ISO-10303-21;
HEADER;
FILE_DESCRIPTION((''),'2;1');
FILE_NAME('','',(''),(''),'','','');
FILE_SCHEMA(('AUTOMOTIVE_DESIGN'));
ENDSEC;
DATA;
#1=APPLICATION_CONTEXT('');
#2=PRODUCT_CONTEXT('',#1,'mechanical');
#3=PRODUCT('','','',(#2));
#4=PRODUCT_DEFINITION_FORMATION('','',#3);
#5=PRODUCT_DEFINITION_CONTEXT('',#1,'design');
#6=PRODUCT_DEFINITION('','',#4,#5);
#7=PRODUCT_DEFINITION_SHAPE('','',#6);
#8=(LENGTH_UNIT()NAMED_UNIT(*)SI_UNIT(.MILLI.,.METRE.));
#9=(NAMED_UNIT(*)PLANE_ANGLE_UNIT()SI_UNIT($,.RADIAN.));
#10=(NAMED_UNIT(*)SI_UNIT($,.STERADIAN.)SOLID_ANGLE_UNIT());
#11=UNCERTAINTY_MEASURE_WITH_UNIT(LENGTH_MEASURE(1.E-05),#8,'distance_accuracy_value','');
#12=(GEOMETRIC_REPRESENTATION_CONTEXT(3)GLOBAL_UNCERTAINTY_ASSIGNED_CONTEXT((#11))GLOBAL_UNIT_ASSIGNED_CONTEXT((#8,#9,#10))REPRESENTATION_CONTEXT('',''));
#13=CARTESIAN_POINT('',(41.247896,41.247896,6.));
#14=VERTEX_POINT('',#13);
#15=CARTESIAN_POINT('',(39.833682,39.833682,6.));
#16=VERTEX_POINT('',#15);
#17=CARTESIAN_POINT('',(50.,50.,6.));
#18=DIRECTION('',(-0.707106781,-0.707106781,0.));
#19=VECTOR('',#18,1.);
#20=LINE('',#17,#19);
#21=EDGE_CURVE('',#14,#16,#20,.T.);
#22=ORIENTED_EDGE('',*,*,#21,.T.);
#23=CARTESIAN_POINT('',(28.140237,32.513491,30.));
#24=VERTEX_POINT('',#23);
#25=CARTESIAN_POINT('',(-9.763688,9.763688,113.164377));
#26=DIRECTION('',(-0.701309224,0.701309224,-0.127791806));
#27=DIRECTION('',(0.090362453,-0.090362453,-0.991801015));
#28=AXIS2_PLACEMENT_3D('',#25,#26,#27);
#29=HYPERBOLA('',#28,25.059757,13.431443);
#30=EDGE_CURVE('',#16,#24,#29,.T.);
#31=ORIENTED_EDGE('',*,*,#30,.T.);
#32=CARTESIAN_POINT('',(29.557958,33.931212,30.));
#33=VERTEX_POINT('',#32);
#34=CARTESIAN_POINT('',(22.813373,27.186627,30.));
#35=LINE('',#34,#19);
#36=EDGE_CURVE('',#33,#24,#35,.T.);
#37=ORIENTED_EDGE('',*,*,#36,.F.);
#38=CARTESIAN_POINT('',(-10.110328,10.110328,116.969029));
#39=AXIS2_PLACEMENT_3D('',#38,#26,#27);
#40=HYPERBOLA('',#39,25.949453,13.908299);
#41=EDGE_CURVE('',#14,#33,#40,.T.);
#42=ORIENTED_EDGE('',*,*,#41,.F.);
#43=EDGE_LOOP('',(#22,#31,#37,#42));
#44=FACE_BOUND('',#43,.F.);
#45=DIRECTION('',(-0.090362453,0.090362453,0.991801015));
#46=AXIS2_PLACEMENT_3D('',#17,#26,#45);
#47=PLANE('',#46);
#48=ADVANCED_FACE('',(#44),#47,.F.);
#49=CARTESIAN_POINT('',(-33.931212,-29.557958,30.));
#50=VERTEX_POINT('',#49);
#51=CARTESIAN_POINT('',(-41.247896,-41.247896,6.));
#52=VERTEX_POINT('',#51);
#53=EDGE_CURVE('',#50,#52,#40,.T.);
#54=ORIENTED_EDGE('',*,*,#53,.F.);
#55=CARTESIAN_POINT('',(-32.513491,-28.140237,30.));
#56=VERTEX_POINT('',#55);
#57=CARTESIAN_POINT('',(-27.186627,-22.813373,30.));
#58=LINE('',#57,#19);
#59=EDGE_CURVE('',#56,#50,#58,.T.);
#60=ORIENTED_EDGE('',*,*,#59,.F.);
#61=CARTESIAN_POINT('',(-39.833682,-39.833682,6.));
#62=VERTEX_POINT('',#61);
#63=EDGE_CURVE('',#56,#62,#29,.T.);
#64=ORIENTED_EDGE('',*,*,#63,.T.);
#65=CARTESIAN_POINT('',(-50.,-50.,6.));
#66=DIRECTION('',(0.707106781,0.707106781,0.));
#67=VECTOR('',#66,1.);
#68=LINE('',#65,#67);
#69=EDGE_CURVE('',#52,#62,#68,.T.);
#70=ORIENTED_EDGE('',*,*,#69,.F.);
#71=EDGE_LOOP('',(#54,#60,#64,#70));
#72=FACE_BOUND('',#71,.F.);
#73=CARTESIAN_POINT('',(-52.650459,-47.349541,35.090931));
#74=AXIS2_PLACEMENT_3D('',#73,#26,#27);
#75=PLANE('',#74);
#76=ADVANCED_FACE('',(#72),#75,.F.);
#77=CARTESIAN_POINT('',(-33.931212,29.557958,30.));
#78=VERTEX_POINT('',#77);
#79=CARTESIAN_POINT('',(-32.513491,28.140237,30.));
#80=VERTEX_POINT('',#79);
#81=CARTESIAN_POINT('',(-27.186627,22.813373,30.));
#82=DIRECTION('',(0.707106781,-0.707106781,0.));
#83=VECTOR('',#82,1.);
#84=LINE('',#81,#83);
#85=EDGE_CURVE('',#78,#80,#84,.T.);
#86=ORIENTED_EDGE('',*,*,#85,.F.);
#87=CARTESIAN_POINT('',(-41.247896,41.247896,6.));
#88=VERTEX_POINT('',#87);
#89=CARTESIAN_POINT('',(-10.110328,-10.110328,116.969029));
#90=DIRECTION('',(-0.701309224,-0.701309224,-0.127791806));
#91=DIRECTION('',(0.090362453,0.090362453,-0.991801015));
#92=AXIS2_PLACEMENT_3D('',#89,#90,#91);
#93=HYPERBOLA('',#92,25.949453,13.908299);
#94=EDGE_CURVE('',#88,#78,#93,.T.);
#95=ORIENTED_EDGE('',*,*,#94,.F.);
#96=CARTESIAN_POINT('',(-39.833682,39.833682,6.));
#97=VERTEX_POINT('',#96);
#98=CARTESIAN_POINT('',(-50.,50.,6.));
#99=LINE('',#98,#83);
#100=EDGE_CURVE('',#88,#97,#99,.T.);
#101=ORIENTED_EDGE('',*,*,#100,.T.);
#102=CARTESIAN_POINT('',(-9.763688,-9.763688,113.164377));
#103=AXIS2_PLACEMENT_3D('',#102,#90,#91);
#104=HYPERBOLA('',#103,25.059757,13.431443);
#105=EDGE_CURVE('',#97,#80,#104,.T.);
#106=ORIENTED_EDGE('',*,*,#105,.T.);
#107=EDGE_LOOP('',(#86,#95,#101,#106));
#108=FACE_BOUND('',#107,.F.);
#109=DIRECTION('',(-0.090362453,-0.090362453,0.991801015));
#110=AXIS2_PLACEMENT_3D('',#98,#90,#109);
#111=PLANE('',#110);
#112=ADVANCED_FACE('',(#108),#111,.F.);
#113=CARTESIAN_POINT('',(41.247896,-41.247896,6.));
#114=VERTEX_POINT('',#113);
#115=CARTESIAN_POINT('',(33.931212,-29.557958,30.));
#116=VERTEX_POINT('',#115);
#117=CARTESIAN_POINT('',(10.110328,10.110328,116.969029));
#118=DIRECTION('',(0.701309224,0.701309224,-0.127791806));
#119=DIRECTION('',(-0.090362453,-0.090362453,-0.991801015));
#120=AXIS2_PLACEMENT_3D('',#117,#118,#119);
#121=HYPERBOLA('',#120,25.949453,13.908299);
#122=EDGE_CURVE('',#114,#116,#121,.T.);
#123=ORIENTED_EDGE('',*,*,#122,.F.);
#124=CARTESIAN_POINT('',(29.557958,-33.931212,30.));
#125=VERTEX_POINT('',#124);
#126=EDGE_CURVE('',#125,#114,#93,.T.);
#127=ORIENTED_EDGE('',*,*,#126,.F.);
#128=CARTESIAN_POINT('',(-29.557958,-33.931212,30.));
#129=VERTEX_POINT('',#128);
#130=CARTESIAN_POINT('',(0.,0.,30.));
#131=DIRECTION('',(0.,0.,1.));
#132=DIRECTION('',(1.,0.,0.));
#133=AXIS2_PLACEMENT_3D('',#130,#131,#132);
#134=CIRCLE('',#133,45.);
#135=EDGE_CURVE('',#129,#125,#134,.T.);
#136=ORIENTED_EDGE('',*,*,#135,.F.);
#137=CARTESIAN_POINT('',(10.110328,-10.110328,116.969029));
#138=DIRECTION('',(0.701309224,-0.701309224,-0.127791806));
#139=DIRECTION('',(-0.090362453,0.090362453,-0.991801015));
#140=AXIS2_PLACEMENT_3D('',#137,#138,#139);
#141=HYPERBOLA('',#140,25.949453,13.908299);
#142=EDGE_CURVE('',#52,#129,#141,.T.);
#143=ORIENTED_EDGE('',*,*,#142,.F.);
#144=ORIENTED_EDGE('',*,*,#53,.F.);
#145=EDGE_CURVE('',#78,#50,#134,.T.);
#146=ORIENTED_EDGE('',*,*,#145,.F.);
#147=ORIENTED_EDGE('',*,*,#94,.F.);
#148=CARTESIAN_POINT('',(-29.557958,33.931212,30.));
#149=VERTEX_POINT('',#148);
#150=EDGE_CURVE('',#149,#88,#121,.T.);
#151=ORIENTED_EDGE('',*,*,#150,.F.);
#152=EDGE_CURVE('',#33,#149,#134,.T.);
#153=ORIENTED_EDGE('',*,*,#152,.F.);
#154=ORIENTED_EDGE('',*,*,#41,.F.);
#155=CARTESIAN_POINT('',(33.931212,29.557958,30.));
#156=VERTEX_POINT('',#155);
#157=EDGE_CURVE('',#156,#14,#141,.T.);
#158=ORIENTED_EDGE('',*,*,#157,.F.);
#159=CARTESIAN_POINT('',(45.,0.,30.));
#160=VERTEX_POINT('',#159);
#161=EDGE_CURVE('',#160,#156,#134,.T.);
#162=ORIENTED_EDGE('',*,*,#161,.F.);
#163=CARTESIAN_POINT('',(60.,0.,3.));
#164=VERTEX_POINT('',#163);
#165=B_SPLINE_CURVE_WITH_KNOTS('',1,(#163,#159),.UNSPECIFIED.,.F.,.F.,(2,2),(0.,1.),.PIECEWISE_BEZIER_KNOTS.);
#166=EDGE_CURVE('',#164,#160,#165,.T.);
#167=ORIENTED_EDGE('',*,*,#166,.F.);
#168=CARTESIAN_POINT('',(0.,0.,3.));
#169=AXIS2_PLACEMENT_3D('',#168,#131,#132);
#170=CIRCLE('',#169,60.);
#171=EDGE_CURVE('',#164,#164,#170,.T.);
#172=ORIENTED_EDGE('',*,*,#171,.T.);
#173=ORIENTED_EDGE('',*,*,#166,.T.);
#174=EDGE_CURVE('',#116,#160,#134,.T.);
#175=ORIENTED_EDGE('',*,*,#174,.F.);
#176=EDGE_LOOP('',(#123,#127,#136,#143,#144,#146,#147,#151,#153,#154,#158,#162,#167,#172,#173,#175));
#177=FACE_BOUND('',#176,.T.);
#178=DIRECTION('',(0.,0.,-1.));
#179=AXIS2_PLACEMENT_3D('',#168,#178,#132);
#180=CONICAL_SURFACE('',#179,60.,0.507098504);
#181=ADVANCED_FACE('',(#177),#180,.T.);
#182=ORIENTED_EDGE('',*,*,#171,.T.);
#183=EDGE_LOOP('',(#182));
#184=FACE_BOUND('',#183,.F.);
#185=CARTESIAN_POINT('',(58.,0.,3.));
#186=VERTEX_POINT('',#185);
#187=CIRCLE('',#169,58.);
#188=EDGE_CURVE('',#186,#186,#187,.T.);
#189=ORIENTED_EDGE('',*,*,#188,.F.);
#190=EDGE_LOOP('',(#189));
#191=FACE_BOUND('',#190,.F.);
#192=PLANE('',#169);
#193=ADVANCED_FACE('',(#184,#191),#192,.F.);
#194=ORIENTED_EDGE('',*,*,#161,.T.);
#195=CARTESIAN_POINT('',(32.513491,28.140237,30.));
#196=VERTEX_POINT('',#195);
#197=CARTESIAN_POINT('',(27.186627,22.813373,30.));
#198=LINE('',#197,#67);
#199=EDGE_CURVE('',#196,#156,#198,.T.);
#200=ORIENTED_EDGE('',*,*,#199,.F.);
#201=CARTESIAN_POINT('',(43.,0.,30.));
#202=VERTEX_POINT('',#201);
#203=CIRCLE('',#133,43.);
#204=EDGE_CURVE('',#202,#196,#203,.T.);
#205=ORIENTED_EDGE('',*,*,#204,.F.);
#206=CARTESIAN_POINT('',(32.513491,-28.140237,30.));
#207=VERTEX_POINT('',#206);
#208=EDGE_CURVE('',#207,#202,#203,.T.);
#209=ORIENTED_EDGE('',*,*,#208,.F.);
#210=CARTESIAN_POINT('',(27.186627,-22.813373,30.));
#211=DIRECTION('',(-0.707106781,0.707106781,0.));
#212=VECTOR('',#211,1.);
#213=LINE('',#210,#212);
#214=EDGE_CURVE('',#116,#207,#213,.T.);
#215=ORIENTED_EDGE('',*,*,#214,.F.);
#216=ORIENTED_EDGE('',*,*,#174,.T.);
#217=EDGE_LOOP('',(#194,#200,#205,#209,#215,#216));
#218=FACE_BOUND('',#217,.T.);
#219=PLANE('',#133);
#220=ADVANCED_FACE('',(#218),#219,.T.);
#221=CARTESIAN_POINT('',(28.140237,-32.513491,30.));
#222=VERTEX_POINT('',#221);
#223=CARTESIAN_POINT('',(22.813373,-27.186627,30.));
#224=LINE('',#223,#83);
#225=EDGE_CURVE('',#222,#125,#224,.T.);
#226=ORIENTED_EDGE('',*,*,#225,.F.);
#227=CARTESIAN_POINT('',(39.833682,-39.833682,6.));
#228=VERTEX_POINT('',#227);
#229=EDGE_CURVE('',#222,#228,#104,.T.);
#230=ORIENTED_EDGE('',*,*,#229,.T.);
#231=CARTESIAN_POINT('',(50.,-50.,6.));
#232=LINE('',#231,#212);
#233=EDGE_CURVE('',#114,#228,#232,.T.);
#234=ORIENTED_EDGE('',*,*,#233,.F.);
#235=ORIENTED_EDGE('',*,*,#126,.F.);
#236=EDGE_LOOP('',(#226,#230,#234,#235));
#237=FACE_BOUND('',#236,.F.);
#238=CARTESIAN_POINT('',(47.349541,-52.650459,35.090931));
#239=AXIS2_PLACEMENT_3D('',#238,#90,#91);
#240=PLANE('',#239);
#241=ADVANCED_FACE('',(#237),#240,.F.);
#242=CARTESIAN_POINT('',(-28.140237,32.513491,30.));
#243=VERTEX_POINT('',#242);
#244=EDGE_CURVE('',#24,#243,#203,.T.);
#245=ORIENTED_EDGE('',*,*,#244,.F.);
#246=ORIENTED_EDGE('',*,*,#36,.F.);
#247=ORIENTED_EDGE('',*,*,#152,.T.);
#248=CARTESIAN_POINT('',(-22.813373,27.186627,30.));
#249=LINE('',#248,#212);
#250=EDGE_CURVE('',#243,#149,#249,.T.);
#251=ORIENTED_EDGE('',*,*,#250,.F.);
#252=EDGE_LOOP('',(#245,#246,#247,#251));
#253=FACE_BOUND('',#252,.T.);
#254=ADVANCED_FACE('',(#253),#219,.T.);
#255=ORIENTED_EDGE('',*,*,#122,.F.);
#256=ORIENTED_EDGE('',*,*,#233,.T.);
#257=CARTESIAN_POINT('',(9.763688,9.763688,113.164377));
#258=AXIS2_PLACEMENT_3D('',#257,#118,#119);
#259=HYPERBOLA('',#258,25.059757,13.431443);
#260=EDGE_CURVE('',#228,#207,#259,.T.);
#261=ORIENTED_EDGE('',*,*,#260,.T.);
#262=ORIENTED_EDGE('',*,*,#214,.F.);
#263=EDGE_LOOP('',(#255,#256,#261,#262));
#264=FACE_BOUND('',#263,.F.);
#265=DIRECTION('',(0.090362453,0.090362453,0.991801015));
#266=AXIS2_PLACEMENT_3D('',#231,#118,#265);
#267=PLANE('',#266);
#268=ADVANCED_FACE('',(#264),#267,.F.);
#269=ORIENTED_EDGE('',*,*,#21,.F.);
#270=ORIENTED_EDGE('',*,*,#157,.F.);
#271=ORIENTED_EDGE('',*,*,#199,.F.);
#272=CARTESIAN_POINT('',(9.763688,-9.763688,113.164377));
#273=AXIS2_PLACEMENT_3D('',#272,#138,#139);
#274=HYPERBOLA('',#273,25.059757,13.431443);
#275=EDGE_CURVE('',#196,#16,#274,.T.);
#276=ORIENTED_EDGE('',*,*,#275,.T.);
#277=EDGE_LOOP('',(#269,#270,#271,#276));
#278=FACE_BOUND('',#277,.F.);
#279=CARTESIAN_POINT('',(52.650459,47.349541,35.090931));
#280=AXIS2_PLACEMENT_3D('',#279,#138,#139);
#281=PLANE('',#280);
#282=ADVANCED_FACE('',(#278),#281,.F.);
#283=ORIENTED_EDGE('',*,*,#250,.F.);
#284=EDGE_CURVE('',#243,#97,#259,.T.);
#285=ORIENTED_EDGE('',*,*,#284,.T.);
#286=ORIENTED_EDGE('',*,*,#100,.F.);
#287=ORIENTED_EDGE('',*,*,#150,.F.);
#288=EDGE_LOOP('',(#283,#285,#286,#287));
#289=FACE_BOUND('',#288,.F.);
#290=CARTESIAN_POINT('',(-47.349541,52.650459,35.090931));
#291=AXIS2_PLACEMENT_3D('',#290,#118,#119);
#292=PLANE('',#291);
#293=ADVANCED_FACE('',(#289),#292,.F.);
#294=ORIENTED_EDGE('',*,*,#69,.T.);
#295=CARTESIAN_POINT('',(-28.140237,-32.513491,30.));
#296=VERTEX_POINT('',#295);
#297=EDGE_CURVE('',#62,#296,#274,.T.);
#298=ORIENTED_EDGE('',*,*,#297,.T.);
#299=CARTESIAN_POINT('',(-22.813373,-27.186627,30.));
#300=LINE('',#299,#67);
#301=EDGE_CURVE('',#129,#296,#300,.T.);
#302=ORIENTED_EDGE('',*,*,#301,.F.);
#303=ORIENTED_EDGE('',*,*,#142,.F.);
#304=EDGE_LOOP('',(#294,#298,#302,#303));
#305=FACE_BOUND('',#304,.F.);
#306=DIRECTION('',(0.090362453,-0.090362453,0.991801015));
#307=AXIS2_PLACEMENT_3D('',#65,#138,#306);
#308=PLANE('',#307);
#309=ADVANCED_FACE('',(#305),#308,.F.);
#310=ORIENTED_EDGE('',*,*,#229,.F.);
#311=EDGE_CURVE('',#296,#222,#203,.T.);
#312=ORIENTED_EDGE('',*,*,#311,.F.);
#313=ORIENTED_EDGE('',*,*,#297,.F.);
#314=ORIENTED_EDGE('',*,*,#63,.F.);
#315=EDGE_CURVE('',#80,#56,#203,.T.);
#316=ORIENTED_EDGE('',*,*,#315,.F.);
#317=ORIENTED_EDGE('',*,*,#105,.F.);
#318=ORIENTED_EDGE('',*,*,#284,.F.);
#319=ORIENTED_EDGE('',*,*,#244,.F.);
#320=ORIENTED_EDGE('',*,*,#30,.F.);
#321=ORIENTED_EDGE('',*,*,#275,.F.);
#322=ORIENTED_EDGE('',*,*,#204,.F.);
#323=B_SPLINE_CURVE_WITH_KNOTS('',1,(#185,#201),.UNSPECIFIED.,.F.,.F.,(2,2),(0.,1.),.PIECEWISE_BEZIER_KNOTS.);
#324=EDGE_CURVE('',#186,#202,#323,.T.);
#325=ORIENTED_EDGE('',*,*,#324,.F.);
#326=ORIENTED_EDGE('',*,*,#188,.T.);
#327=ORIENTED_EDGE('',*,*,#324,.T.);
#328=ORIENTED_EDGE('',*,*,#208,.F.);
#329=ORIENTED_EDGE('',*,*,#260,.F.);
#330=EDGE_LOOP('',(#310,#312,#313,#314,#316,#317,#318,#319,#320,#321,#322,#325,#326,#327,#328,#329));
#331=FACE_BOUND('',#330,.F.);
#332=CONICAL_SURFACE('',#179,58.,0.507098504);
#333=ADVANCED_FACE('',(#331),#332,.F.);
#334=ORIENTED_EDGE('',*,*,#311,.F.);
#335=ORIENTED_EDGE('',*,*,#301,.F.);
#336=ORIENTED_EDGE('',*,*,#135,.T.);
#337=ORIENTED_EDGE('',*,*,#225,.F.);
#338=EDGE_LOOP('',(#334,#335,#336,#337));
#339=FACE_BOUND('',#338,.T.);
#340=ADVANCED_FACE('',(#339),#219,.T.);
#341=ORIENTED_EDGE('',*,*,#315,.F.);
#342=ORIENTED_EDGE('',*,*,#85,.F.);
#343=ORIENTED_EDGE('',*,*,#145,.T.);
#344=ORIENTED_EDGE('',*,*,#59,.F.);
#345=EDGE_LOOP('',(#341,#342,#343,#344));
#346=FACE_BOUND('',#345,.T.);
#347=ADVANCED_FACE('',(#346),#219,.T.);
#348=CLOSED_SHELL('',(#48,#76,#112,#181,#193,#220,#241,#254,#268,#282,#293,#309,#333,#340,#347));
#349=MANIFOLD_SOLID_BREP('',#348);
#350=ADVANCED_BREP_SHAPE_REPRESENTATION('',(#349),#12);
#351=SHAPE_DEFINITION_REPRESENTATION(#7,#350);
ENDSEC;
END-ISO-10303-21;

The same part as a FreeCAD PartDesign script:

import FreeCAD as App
import Part
import Sketcher
Q = App.Units.Quantity

doc = App.newDocument("Part")
body = doc.addObject("PartDesign::Body", "Body")

# Sketch on XY plane
sketch1 = doc.addObject("Sketcher::SketchObject", "Sketch")
body.addObject(sketch1)
sketch1.AttachmentSupport = (doc.XY_Plane, [""])
sketch1.MapMode = "FlatFace"
sketch1.AttachmentOffset = App.Placement(App.Vector(0, 0, 3), App.Rotation())
sketch1.addGeometry(Part.Circle(App.Vector(0, 0, 0), App.Vector(0, 0, 1), 58), False)
sketch1.addConstraint(Sketcher.Constraint("Coincident", 0, 3, -1, 1))
sketch1.addConstraint(Sketcher.Constraint("Diameter", 0, Q("116 mm")))

# Sketch on XY plane
sketch2 = doc.addObject("Sketcher::SketchObject", "Sketch001")
body.addObject(sketch2)
sketch2.AttachmentSupport = (doc.XY_Plane, [""])
sketch2.MapMode = "FlatFace"
sketch2.AttachmentOffset = App.Placement(App.Vector(0, 0, 30), App.Rotation())
sketch2.addGeometry(Part.Circle(App.Vector(0, 0, 0), App.Vector(0, 0, 1), 43), False)
sketch2.addConstraint(Sketcher.Constraint("Coincident", 0, 3, -1, 1))
sketch2.addConstraint(Sketcher.Constraint("Diameter", 0, Q("86 mm")))

additiveloft = doc.addObject("PartDesign::AdditiveLoft", "AdditiveLoft")
body.addObject(additiveloft)
additiveloft.Profile = sketch1
additiveloft.Sections = [sketch2]
body2 = doc.addObject("PartDesign::Body", "Body001")

# Sketch on XY plane
sketch3 = doc.addObject("Sketcher::SketchObject", "Sketch002")
body2.addObject(sketch3)
sketch3.AttachmentSupport = (doc.getObject("XY_Plane001"), [""])
sketch3.MapMode = "FlatFace"
sketch3.AttachmentOffset = App.Placement(App.Vector(0, 0, 3), App.Rotation())
sketch3.addGeometry(Part.Circle(App.Vector(0, 0, 0), App.Vector(0, 0, 1), 60), False)
sketch3.addConstraint(Sketcher.Constraint("Coincident", 0, 3, -1, 1))
sketch3.addConstraint(Sketcher.Constraint("Diameter", 0, Q("120 mm")))

# Sketch on XY plane
sketch4 = doc.addObject("Sketcher::SketchObject", "Sketch003")
body2.addObject(sketch4)
sketch4.AttachmentSupport = (doc.getObject("XY_Plane001"), [""])
sketch4.MapMode = "FlatFace"
sketch4.AttachmentOffset = App.Placement(App.Vector(0, 0, 30), App.Rotation())
sketch4.addGeometry(Part.Circle(App.Vector(0, 0, 0), App.Vector(0, 0, 1), 45), False)
sketch4.addConstraint(Sketcher.Constraint("Coincident", 0, 3, -1, 1))
sketch4.addConstraint(Sketcher.Constraint("Diameter", 0, Q("90 mm")))

additiveloft2 = doc.addObject("PartDesign::AdditiveLoft", "AdditiveLoft001")
body2.addObject(additiveloft2)
additiveloft2.Profile = sketch3
additiveloft2.Sections = [sketch4]
doc.recompute()

boolean = doc.addObject("PartDesign::Boolean", "Boolean")
body2.addObject(boolean)
boolean.Type = "Cut"
boolean.addObjects([body])

# Sketch on an angled plane
sketch5 = doc.addObject("Sketcher::SketchObject", "Sketch004")
body2.addObject(sketch5)
sketch5.Placement = App.Placement(App.Vector(-50, -50, 0), App.Rotation(App.Vector(-0.707106781, 0.707106781, 0), App.Vector(0, 0, 0.999999999), App.Vector(0.707106781, 0.707106781, 0), "ZXY"))
sketch5.addGeometry(Part.LineSegment(App.Vector(-4, 35, 0), App.Vector(0, 6, 0)), False)
sketch5.addGeometry(Part.LineSegment(App.Vector(0, 6, 0), App.Vector(4, 35, 0)), False)
sketch5.addGeometry(Part.LineSegment(App.Vector(4, 35, 0), App.Vector(-4, 35, 0)), False)
sketch5.addConstraint(Sketcher.Constraint("Coincident", 0, 2, 1, 1))
sketch5.addConstraint(Sketcher.Constraint("Coincident", 1, 2, 2, 1))
sketch5.addConstraint(Sketcher.Constraint("Coincident", 2, 2, 0, 1))
sketch5.addConstraint(Sketcher.Constraint("Horizontal", 2))
sketch5.addConstraint(Sketcher.Constraint("PointOnObject", 0, 2, -2))
sketch5.addConstraint(Sketcher.Constraint("Equal", 0, 1))
sketch5.addConstraint(Sketcher.Constraint("DistanceY", -1, 1, 0, 2, Q("6 mm")))
sketch5.addConstraint(Sketcher.Constraint("DistanceX", 2, 2, 2, 1, Q("7.49663 mm")))
sketch5.addConstraint(Sketcher.Constraint("Distance", 0, Q("29.331419 mm")))
pocket1 = doc.addObject("PartDesign::Pocket", "Pocket")
body2.addObject(pocket1)
pocket1.Profile = sketch5
pocket1.Length = 33
pocket1.Reversed = True
doc.recompute()

polarpattern = doc.addObject("PartDesign::PolarPattern", "PolarPattern")
body2.addObject(polarpattern)
polarpattern.Originals = [pocket1]
polarpattern.Axis = (doc.getObject("Z_Axis001"), [""])
polarpattern.Angle = 360
polarpattern.Occurrences = 4
body2.Tip = polarpattern

doc.recompute()
